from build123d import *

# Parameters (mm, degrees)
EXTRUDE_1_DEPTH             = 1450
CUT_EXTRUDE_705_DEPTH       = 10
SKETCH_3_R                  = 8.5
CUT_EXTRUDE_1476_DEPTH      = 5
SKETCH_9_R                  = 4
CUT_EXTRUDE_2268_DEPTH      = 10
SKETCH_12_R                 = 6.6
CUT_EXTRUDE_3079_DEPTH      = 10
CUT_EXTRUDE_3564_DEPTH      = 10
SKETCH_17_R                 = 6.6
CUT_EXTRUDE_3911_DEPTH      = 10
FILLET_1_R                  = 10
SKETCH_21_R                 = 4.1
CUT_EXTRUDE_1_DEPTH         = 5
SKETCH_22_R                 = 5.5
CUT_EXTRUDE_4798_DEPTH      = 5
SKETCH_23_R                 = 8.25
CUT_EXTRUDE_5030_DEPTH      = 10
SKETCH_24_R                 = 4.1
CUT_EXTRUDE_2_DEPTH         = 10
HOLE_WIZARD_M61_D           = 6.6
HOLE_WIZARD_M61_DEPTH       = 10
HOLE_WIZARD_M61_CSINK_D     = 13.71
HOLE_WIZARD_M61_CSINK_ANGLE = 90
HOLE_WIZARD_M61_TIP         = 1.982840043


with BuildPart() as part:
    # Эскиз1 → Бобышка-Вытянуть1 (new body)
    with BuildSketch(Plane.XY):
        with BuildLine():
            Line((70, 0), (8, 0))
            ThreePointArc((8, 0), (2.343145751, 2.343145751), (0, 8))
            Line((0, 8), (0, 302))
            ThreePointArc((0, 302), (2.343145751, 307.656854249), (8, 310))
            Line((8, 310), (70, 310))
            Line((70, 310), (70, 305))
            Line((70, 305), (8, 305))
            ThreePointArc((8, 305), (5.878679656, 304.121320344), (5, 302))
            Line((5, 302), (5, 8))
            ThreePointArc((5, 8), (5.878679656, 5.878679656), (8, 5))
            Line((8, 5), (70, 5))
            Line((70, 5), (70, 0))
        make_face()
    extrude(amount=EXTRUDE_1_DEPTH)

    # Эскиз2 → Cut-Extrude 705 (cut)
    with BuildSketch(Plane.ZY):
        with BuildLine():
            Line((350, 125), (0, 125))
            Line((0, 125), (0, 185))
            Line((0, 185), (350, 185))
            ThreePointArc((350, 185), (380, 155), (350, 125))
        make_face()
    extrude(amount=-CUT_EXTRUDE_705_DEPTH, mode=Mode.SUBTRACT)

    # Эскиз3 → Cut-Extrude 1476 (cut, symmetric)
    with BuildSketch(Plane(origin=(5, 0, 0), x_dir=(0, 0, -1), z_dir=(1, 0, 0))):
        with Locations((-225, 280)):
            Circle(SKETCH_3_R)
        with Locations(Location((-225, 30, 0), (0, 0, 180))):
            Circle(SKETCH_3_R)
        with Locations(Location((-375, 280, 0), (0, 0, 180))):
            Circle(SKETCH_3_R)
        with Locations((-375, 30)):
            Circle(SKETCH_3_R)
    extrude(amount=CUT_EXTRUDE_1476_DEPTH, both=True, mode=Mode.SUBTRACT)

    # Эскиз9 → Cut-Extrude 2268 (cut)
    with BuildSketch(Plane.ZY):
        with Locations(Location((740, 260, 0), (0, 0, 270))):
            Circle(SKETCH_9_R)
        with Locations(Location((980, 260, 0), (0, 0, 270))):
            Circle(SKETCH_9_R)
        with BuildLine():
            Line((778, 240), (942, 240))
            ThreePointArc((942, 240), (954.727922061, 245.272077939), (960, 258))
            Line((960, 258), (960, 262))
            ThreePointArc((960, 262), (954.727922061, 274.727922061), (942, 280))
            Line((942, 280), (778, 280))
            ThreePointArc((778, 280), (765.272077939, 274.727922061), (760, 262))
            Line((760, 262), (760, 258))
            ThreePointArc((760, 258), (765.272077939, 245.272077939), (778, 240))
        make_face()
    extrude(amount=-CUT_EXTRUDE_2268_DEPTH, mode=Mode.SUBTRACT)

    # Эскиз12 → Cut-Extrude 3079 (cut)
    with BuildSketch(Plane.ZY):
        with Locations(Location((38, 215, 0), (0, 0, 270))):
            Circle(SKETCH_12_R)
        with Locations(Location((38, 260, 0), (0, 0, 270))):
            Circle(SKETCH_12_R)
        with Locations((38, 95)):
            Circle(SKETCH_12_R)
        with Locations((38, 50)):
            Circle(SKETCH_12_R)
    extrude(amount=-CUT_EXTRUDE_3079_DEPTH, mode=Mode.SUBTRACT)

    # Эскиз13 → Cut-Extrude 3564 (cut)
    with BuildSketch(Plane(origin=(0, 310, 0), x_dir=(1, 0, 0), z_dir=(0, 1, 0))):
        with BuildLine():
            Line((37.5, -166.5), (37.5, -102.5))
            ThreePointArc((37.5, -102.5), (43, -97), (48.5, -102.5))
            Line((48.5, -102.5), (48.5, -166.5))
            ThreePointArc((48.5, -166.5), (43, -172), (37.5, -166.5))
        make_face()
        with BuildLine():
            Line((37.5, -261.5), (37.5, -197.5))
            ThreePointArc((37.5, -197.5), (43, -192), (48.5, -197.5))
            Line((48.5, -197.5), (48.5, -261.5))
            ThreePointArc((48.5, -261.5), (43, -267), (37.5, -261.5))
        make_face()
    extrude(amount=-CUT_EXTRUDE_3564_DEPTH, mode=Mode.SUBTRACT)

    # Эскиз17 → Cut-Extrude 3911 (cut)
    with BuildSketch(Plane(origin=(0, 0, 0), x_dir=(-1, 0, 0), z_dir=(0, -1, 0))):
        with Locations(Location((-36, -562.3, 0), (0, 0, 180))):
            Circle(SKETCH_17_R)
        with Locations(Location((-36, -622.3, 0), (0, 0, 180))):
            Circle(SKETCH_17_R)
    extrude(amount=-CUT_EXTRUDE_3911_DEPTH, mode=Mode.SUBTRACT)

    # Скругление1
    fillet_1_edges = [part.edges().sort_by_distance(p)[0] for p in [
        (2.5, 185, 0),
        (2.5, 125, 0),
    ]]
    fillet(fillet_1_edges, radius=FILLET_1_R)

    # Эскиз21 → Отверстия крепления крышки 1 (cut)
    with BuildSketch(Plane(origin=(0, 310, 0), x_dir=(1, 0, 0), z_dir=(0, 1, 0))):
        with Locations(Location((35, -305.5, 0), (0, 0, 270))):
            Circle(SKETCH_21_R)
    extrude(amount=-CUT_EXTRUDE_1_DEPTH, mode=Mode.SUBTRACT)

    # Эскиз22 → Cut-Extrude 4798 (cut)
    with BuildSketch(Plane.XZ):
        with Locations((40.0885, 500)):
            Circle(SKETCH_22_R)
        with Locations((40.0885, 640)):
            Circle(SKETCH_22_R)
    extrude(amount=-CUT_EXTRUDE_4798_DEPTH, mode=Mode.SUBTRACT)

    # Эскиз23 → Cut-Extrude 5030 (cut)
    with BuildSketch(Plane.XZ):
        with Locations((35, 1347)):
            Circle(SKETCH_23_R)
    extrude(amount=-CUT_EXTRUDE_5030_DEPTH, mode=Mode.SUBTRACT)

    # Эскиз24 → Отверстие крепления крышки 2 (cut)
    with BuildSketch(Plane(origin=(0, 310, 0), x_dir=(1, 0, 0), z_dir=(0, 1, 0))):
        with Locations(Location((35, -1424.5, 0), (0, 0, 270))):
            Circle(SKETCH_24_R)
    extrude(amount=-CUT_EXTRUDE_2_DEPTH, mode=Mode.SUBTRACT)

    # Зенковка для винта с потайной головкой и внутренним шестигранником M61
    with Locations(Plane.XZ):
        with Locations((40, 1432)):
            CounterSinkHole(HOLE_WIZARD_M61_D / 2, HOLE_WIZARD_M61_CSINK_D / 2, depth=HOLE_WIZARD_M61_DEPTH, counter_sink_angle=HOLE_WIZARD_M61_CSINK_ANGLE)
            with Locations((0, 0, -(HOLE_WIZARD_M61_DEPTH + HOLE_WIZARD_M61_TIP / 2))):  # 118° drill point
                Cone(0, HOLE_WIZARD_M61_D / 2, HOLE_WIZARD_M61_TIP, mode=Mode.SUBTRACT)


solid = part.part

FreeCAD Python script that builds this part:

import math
import FreeCAD as App
import Part
import Sketcher
from FreeCAD import Vector
Q = App.Units.Quantity


def edges_at(feature, points):
    """Names of the edges that pass closest to the given points."""
    edges = feature.Shape.Edges
    near = lambda p: min(range(len(edges)), key=lambda i: edges[i].distToShape(Part.Vertex(*p))[0])
    return sorted({f"Edge{near(p) + 1}" for p in points})

doc = App.newDocument("Part")
body = doc.addObject("PartDesign::Body", "Body")

sketch1 = body.newObject("Sketcher::SketchObject", "Sketch")
sketch1.AttachmentSupport = (doc.getObject("XY_Plane"), [""])
sketch1.MapMode = "FlatFace"
sketch1.addGeometry([
    Part.LineSegment(Vector(8, 0, 0), Vector(70, 0, 0)),
    Part.LineSegment(Vector(70, 0, 0), Vector(70, 5, 0)),
    Part.LineSegment(Vector(70, 5, 0), Vector(8, 5, 0)),
    Part.ArcOfCircle(Part.Circle(Vector(8, 8, 0), Vector(0, 0, 1), 3), math.radians(180), math.radians(270)),
    Part.LineSegment(Vector(5, 8, 0), Vector(5, 302, 0)),
    Part.ArcOfCircle(Part.Circle(Vector(8, 302, 0), Vector(0, 0, 1), 3), math.radians(90), math.radians(180)),
    Part.LineSegment(Vector(8, 305, 0), Vector(70, 305, 0)),
    Part.LineSegment(Vector(70, 305, 0), Vector(70, 310, 0)),
    Part.LineSegment(Vector(70, 310, 0), Vector(8, 310, 0)),
    Part.ArcOfCircle(Part.Circle(Vector(8, 302, 0), Vector(0, 0, 1), 8), math.radians(90), math.radians(180)),
    Part.LineSegment(Vector(0, 302, 0), Vector(0, 8, 0)),
    Part.ArcOfCircle(Part.Circle(Vector(8, 8, 0), Vector(0, 0, 1), 8), math.radians(-180), math.radians(-90)),
], False)
sketch1.addConstraint([
    Sketcher.Constraint("Coincident", 0, 2, 1, 1),
    Sketcher.Constraint("Coincident", 1, 2, 2, 1),
    Sketcher.Constraint("Tangent", 2, 2, 3, 2),
    Sketcher.Constraint("Tangent", 3, 1, 4, 1),
    Sketcher.Constraint("Tangent", 4, 2, 5, 2),
    Sketcher.Constraint("Tangent", 5, 1, 6, 1),
    Sketcher.Constraint("Coincident", 6, 2, 7, 1),
    Sketcher.Constraint("Coincident", 7, 2, 8, 1),
    Sketcher.Constraint("Tangent", 8, 2, 9, 1),
    Sketcher.Constraint("Tangent", 9, 2, 10, 1),
    Sketcher.Constraint("Tangent", 10, 2, 11, 1),
    Sketcher.Constraint("Tangent", 11, 2, 0, 1),
    Sketcher.Constraint("Horizontal", 0),
    Sketcher.Constraint("Vertical", 1),
    Sketcher.Constraint("Horizontal", 2),
    Sketcher.Constraint("Vertical", 4),
    Sketcher.Constraint("Horizontal", 6),
    Sketcher.Constraint("Vertical", 7),
    Sketcher.Constraint("Horizontal", 8),
    Sketcher.Constraint("Vertical", 10),
    Sketcher.Constraint("Coincident", 9, 3, 5, 3),
    Sketcher.Constraint("Coincident", 11, 3, 3, 3),
    Sketcher.Constraint("Equal", 3, 5),
    Sketcher.Constraint("PointOnObject", 0, 2, -1),
    Sketcher.Constraint("PointOnObject", 9, 2, -2),
    Sketcher.Constraint("Vertical", 1, 2, 6, 2),
    Sketcher.Constraint("Radius", 3, Q("3 mm")),
    Sketcher.Constraint("Radius", 9, Q("8 mm")),
    Sketcher.Constraint("DistanceX", 0, 1, 0, 2, Q("62 mm")),
    Sketcher.Constraint("DistanceY", 4, 1, 4, 2, Q("294 mm")),
])
pad1 = body.newObject("PartDesign::Pad", "Pad")
pad1.Profile = sketch1
pad1.Length = 1450

sketch2 = body.newObject("Sketcher::SketchObject", "Sketch001")
sketch2.AttachmentSupport = (doc.getObject("YZ_Plane"), [""])
sketch2.MapMode = "FlatFace"
sketch2.addGeometry([
    Part.LineSegment(Vector(125, 0, 0), Vector(125, 350, 0)),
    Part.ArcOfCircle(Part.Circle(Vector(155, 350, 0), Vector(0, 0, 1), 30), math.radians(0), math.radians(180)),
    Part.LineSegment(Vector(185, 350, 0), Vector(185, 0, 0)),
    Part.LineSegment(Vector(185, 0, 0), Vector(125, 0, 0)),
], False)
sketch2.addConstraint([
    Sketcher.Constraint("Tangent", 0, 2, 1, 2),
    Sketcher.Constraint("Tangent", 1, 1, 2, 1),
    Sketcher.Constraint("Coincident", 2, 2, 3, 1),
    Sketcher.Constraint("Coincident", 3, 2, 0, 1),
    Sketcher.Constraint("Vertical", 0),
    Sketcher.Constraint("Vertical", 2),
    Sketcher.Constraint("Horizontal", 3),
    Sketcher.Constraint("PointOnObject", 2, 2, -1),
    Sketcher.Constraint("Radius", 1, Q("30 mm")),
    Sketcher.Constraint("DistanceY", 0, 1, 0, 2, Q("350 mm")),
    Sketcher.Constraint("DistanceX", -1, 1, 1, 3, Q("155 mm")),
])
pocket1 = body.newObject("PartDesign::Pocket", "Pocket")
pocket1.Profile = sketch2
pocket1.Length = 10
pocket1.Reversed = True

sketch3 = body.newObject("Sketcher::SketchObject", "Sketch002")
sketch3.AttachmentSupport = (doc.getObject("YZ_Plane"), [""])
sketch3.MapMode = "FlatFace"
sketch3.AttachmentOffset = App.Placement(Vector(0, 0, 5), App.Rotation())
sketch3.addGeometry([
    Part.Circle(Vector(280, 225, 0), Vector(0, 0, 1), 8.5),
    Part.Circle(Vector(30, 225, 0), Vector(0, 0, 1), 8.5),
    Part.Circle(Vector(280, 375, 0), Vector(0, 0, 1), 8.5),
    Part.Circle(Vector(30, 375, 0), Vector(0, 0, 1), 8.5),
], False)
sketch3.addConstraint([
    Sketcher.Constraint("Equal", 0, 1),
    Sketcher.Constraint("Equal", 1, 2),
    Sketcher.Constraint("Equal", 2, 3),
    Sketcher.Constraint("Horizontal", 0, 3, 1, 3),
    Sketcher.Constraint("Horizontal", 2, 3, 3, 3),
    Sketcher.Constraint("Vertical", 0, 3, 2, 3),
    Sketcher.Constraint("Vertical", 1, 3, 3, 3),
    Sketcher.Constraint("Diameter", 0, Q("17 mm")),
    Sketcher.Constraint("DistanceX", -1, 1, 0, 3, Q("280 mm")),
    Sketcher.Constraint("DistanceY", -1, 1, 0, 3, Q("225 mm")),
    Sketcher.Constraint("DistanceX", -1, 1, 1, 3, Q("30 mm")),
    Sketcher.Constraint("DistanceY", -1, 1, 2, 3, Q("375 mm")),
])
pocket2 = body.newObject("PartDesign::Pocket", "Pocket001")
pocket2.Profile = sketch3
pocket2.Length = 10
pocket2.Midplane = True

sketch4 = body.newObject("Sketcher::SketchObject", "Sketch003")
sketch4.AttachmentSupport = (doc.getObject("YZ_Plane"), [""])
sketch4.MapMode = "FlatFace"
sketch4.addGeometry([
    Part.Circle(Vector(260, 740, 0), Vector(0, 0, 1), 4),
    Part.Circle(Vector(260, 980, 0), Vector(0, 0, 1), 4),
    Part.LineSegment(Vector(240, 778, 0), Vector(240, 942, 0)),
    Part.ArcOfCircle(Part.Circle(Vector(258, 942, 0), Vector(0, 0, 1), 18), math.radians(90), math.radians(180)),
    Part.LineSegment(Vector(258, 960, 0), Vector(262, 960, 0)),
    Part.ArcOfCircle(Part.Circle(Vector(262, 942, 0), Vector(0, 0, 1), 18), math.radians(0), math.radians(90)),
    Part.LineSegment(Vector(280, 942, 0), Vector(280, 778, 0)),
    Part.ArcOfCircle(Part.Circle(Vector(262, 778, 0), Vector(0, 0, 1), 18), math.radians(-90), math.radians(0)),
    Part.LineSegment(Vector(262, 760, 0), Vector(258, 760, 0)),
    Part.ArcOfCircle(Part.Circle(Vector(258, 778, 0), Vector(0, 0, 1), 18), math.radians(-180), math.radians(-90)),
], False)
sketch4.addConstraint([
    Sketcher.Constraint("Tangent", 2, 2, 3, 2),
    Sketcher.Constraint("Tangent", 3, 1, 4, 1),
    Sketcher.Constraint("Tangent", 4, 2, 5, 2),
    Sketcher.Constraint("Tangent", 5, 1, 6, 1),
    Sketcher.Constraint("Tangent", 6, 2, 7, 2),
    Sketcher.Constraint("Tangent", 7, 1, 8, 1),
    Sketcher.Constraint("Tangent", 8, 2, 9, 2),
    Sketcher.Constraint("Tangent", 9, 1, 2, 1),
    Sketcher.Constraint("Vertical", 2),
    Sketcher.Constraint("Horizontal", 4),
    Sketcher.Constraint("Vertical", 6),
    Sketcher.Constraint("Horizontal", 8),
    Sketcher.Constraint("Equal", 0, 1),
    Sketcher.Constraint("Equal", 3, 5),
    Sketcher.Constraint("Equal", 5, 7),
    Sketcher.Constraint("Equal", 7, 9),
    Sketcher.Constraint("Vertical", 0, 3, 1, 3),
    Sketcher.Constraint("Diameter", 0, Q("8 mm")),
    Sketcher.Constraint("Radius", 3, Q("18 mm")),
    Sketcher.Constraint("DistanceX", 4, 1, 4, 2, Q("4 mm")),
    Sketcher.Constraint("DistanceY", 2, 1, 2, 2, Q("164 mm")),
    Sketcher.Constraint("DistanceX", -1, 1, 0, 3, Q("260 mm")),
    Sketcher.Constraint("DistanceY", -1, 1, 0, 3, Q("740 mm")),
    Sketcher.Constraint("DistanceY", -1, 1, 1, 3, Q("980 mm")),
    Sketcher.Constraint("DistanceX", -1, 1, 3, 3, Q("258 mm")),
    Sketcher.Constraint("DistanceY", -1, 1, 3, 3, Q("942 mm")),
])
pocket3 = body.newObject("PartDesign::Pocket", "Pocket002")
pocket3.Profile = sketch4
pocket3.Length = 10
pocket3.Reversed = True

sketch5 = body.newObject("Sketcher::SketchObject", "Sketch004")
sketch5.AttachmentSupport = (doc.getObject("YZ_Plane"), [""])
sketch5.MapMode = "FlatFace"
sketch5.addGeometry([
    Part.Circle(Vector(215, 38, 0), Vector(0, 0, 1), 6.6),
    Part.Circle(Vector(260, 38, 0), Vector(0, 0, 1), 6.6),
    Part.Circle(Vector(95, 38, 0), Vector(0, 0, 1), 6.6),
    Part.Circle(Vector(50, 38, 0), Vector(0, 0, 1), 6.6),
], False)
sketch5.addConstraint([
    Sketcher.Constraint("Equal", 0, 1),
    Sketcher.Constraint("Equal", 1, 2),
    Sketcher.Constraint("Equal", 2, 3),
    Sketcher.Constraint("Horizontal", 0, 3, 1, 3),
    Sketcher.Constraint("Horizontal", 1, 3, 2, 3),
    Sketcher.Constraint("Horizontal", 2, 3, 3, 3),
    Sketcher.Constraint("Diameter", 0, Q("13.2 mm")),
    Sketcher.Constraint("DistanceX", -1, 1, 0, 3, Q("215 mm")),
    Sketcher.Constraint("DistanceY", -1, 1, 0, 3, Q("38 mm")),
    Sketcher.Constraint("DistanceX", -1, 1, 1, 3, Q("260 mm")),
    Sketcher.Constraint("DistanceX", -1, 1, 2, 3, Q("95 mm")),
    Sketcher.Constraint("DistanceX", -1, 1, 3, 3, Q("50 mm")),
])
pocket4 = body.newObject("PartDesign::Pocket", "Pocket003")
pocket4.Profile = sketch5
pocket4.Length = 10
pocket4.Reversed = True

sketch6 = body.newObject("Sketcher::SketchObject", "Sketch005")
sketch6.AttachmentSupport = (doc.getObject("XZ_Plane"), [""])
sketch6.MapMode = "FlatFace"
sketch6.AttachmentOffset = App.Placement(Vector(0, 0, -310), App.Rotation())
sketch6.addGeometry([
    Part.LineSegment(Vector(37.5, 102.5, 0), Vector(37.5, 166.5, 0)),
    Part.ArcOfCircle(Part.Circle(Vector(43, 166.5, 0), Vector(0, 0, 1), 5.5), math.radians(0), math.radians(180)),
    Part.LineSegment(Vector(48.5, 166.5, 0), Vector(48.5, 102.5, 0)),
    Part.ArcOfCircle(Part.Circle(Vector(43, 102.5, 0), Vector(0, 0, 1), 5.5), math.radians(180), math.radians(360)),
    Part.LineSegment(Vector(37.5, 197.5, 0), Vector(37.5, 261.5, 0)),
    Part.ArcOfCircle(Part.Circle(Vector(43, 261.5, 0), Vector(0, 0, 1), 5.5), math.radians(0), math.radians(180)),
    Part.LineSegment(Vector(48.5, 261.5, 0), Vector(48.5, 197.5, 0)),
    Part.ArcOfCircle(Part.Circle(Vector(43, 197.5, 0), Vector(0, 0, 1), 5.5), math.radians(180), math.radians(360)),
], False)
sketch6.addConstraint([
    Sketcher.Constraint("Tangent", 0, 2, 1, 2),
    Sketcher.Constraint("Tangent", 1, 1, 2, 1),
    Sketcher.Constraint("Tangent", 2, 2, 3, 2),
    Sketcher.Constraint("Tangent", 3, 1, 0, 1),
    Sketcher.Constraint("Tangent", 4, 2, 5, 2),
    Sketcher.Constraint("Tangent", 5, 1, 6, 1),
    Sketcher.Constraint("Tangent", 6, 2, 7, 2),
    Sketcher.Constraint("Tangent", 7, 1, 4, 1),
    Sketcher.Constraint("Vertical", 0),
    Sketcher.Constraint("Vertical", 2),
    Sketcher.Constraint("Vertical", 4),
    Sketcher.Constraint("Vertical", 6),
    Sketcher.Constraint("Equal", 3, 5),
    Sketcher.Constraint("Vertical", 3, 3, 5, 3),
    Sketcher.Constraint("Equal", 2, 4),
    Sketcher.Constraint("Radius", 1, Q("5.5 mm")),
    Sketcher.Constraint("DistanceY", 0, 1, 0, 2, Q("64 mm")),
    Sketcher.Constraint("DistanceX", -1, 1, 1, 3, Q("43 mm")),
    Sketcher.Constraint("DistanceY", 1, 3, 5, 3, Q("95 mm")),
    Sketcher.Constraint("DistanceY", -1, 1, 1, 3, Q("166.5 mm")),
])
pocket5 = body.newObject("PartDesign::Pocket", "Pocket004")
pocket5.Profile = sketch6
pocket5.Length = 10
pocket5.Reversed = True

sketch7 = body.newObject("Sketcher::SketchObject", "Sketch006")
sketch7.AttachmentSupport = (doc.getObject("XZ_Plane"), [""])
sketch7.MapMode = "FlatFace"
sketch7.addGeometry([
    Part.Circle(Vector(36, 562.3, 0), Vector(0, 0, 1), 6.6),
    Part.Circle(Vector(36, 622.3, 0), Vector(0, 0, 1), 6.6),
], False)
sketch7.addConstraint([
    Sketcher.Constraint("Equal", 0, 1),
    Sketcher.Constraint("Vertical", 0, 3, 1, 3),
    Sketcher.Constraint("Diameter", 0, Q("13.2 mm")),
    Sketcher.Constraint("DistanceX", -1, 1, 0, 3, Q("36 mm")),
    Sketcher.Constraint("DistanceY", 0, 3, 1, 3, Q("60 mm")),
    Sketcher.Constraint("DistanceY", -1, 1, 0, 3, Q("562.3 mm")),
])
pocket6 = body.newObject("PartDesign::Pocket", "Pocket005")
pocket6.Profile = sketch7
pocket6.Length = 10
doc.recompute()

fillet = body.newObject("PartDesign::Fillet", "Fillet")
fillet.Base = (pocket6, edges_at(pocket6, [(2.5, 185, 0), (2.5, 125, 0)]))
fillet.Radius = 10

sketch8 = body.newObject("Sketcher::SketchObject", "Sketch007")
sketch8.AttachmentSupport = (doc.getObject("XZ_Plane"), [""])
sketch8.MapMode = "FlatFace"
sketch8.AttachmentOffset = App.Placement(Vector(0, 0, -310), App.Rotation())
sketch8.addGeometry(Part.Circle(Vector(35, 305.5, 0), Vector(0, 0, 1), 4.1), False)
sketch8.addConstraint([
    Sketcher.Constraint("Diameter", 0, Q("8.2 mm")),
    Sketcher.Constraint("DistanceX", -1, 1, 0, 3, Q("35 mm")),
    Sketcher.Constraint("DistanceY", -1, 1, 0, 3, Q("305.5 mm")),
])
pocket7 = body.newObject("PartDesign::Pocket", "Pocket006")
pocket7.Profile = sketch8
pocket7.Length = 5
pocket7.Reversed = True

sketch9 = body.newObject("Sketcher::SketchObject", "Sketch008")
sketch9.AttachmentSupport = (doc.getObject("XZ_Plane"), [""])
sketch9.MapMode = "FlatFace"
sketch9.addGeometry([
    Part.Circle(Vector(40.0885, 500, 0), Vector(0, 0, 1), 5.5),
    Part.Circle(Vector(40.0885, 640, 0), Vector(0, 0, 1), 5.5),
], False)
sketch9.addConstraint([
    Sketcher.Constraint("Equal", 0, 1),
    Sketcher.Constraint("Vertical", 0, 3, 1, 3),
    Sketcher.Constraint("Diameter", 0, Q("11 mm")),
    Sketcher.Constraint("DistanceY", -1, 1, 0, 3, Q("500 mm")),
    Sketcher.Constraint("DistanceY", -1, 1, 1, 3, Q("640 mm")),
    Sketcher.Constraint("DistanceX", -1, 1, 0, 3, Q("40.0885 mm")),
])
pocket8 = body.newObject("PartDesign::Pocket", "Pocket007")
pocket8.Profile = sketch9
pocket8.Length = 5

sketch10 = body.newObject("Sketcher::SketchObject", "Sketch009")
sketch10.AttachmentSupport = (doc.getObject("XZ_Plane"), [""])
sketch10.MapMode = "FlatFace"
sketch10.addGeometry(Part.Circle(Vector(35, 1347, 0), Vector(0, 0, 1), 8.25), False)
sketch10.addConstraint([
    Sketcher.Constraint("Diameter", 0, Q("16.5 mm")),
    Sketcher.Constraint("DistanceX", -1, 1, 0, 3, Q("35 mm")),
    Sketcher.Constraint("DistanceY", -1, 1, 0, 3, Q("1347 mm")),
])
pocket9 = body.newObject("PartDesign::Pocket", "Pocket008")
pocket9.Profile = sketch10
pocket9.Length = 10

sketch11 = body.newObject("Sketcher::SketchObject", "Sketch010")
sketch11.AttachmentSupport = (doc.getObject("XZ_Plane"), [""])
sketch11.MapMode = "FlatFace"
sketch11.AttachmentOffset = App.Placement(Vector(0, 0, -310), App.Rotation())
sketch11.addGeometry(Part.Circle(Vector(35, 1424.5, 0), Vector(0, 0, 1), 4.1), False)
sketch11.addConstraint([
    Sketcher.Constraint("Diameter", 0, Q("8.2 mm")),
    Sketcher.Constraint("DistanceX", -1, 1, 0, 3, Q("35 mm")),
    Sketcher.Constraint("DistanceY", -1, 1, 0, 3, Q("1424.5 mm")),
])
pocket10 = body.newObject("PartDesign::Pocket", "Pocket009")
pocket10.Profile = sketch11
pocket10.Length = 10
pocket10.Reversed = True

sketch12 = body.newObject("Sketcher::SketchObject", "Sketch011")
sketch12.AttachmentSupport = (doc.getObject("XZ_Plane"), [""])
sketch12.MapMode = "FlatFace"
sketch12.addGeometry(Part.Circle(Vector(40, 1432, 0), Vector(0, 0, 1), 3.3), False)
sketch12.addConstraint([
    Sketcher.Constraint("Diameter", 0, Q("6.6 mm")),
    Sketcher.Constraint("DistanceX", -1, 1, 0, 3, Q("40 mm")),
    Sketcher.Constraint("DistanceY", -1, 1, 0, 3, Q("1432 mm")),
])
doc.recompute()
hole = body.newObject("PartDesign::Hole", "Hole")
hole.Profile = sketch12
hole.ThreadType = "None"
hole.Diameter = 6.6
hole.DepthType = "Dimension"
hole.Depth = 10
hole.DrillPoint = "Angled"
hole.DrillPointAngle = 118
hole.HoleCutType = "Countersink"
hole.HoleCutDiameter = 13.71
hole.HoleCutCountersinkAngle = 90

doc.recompute()
